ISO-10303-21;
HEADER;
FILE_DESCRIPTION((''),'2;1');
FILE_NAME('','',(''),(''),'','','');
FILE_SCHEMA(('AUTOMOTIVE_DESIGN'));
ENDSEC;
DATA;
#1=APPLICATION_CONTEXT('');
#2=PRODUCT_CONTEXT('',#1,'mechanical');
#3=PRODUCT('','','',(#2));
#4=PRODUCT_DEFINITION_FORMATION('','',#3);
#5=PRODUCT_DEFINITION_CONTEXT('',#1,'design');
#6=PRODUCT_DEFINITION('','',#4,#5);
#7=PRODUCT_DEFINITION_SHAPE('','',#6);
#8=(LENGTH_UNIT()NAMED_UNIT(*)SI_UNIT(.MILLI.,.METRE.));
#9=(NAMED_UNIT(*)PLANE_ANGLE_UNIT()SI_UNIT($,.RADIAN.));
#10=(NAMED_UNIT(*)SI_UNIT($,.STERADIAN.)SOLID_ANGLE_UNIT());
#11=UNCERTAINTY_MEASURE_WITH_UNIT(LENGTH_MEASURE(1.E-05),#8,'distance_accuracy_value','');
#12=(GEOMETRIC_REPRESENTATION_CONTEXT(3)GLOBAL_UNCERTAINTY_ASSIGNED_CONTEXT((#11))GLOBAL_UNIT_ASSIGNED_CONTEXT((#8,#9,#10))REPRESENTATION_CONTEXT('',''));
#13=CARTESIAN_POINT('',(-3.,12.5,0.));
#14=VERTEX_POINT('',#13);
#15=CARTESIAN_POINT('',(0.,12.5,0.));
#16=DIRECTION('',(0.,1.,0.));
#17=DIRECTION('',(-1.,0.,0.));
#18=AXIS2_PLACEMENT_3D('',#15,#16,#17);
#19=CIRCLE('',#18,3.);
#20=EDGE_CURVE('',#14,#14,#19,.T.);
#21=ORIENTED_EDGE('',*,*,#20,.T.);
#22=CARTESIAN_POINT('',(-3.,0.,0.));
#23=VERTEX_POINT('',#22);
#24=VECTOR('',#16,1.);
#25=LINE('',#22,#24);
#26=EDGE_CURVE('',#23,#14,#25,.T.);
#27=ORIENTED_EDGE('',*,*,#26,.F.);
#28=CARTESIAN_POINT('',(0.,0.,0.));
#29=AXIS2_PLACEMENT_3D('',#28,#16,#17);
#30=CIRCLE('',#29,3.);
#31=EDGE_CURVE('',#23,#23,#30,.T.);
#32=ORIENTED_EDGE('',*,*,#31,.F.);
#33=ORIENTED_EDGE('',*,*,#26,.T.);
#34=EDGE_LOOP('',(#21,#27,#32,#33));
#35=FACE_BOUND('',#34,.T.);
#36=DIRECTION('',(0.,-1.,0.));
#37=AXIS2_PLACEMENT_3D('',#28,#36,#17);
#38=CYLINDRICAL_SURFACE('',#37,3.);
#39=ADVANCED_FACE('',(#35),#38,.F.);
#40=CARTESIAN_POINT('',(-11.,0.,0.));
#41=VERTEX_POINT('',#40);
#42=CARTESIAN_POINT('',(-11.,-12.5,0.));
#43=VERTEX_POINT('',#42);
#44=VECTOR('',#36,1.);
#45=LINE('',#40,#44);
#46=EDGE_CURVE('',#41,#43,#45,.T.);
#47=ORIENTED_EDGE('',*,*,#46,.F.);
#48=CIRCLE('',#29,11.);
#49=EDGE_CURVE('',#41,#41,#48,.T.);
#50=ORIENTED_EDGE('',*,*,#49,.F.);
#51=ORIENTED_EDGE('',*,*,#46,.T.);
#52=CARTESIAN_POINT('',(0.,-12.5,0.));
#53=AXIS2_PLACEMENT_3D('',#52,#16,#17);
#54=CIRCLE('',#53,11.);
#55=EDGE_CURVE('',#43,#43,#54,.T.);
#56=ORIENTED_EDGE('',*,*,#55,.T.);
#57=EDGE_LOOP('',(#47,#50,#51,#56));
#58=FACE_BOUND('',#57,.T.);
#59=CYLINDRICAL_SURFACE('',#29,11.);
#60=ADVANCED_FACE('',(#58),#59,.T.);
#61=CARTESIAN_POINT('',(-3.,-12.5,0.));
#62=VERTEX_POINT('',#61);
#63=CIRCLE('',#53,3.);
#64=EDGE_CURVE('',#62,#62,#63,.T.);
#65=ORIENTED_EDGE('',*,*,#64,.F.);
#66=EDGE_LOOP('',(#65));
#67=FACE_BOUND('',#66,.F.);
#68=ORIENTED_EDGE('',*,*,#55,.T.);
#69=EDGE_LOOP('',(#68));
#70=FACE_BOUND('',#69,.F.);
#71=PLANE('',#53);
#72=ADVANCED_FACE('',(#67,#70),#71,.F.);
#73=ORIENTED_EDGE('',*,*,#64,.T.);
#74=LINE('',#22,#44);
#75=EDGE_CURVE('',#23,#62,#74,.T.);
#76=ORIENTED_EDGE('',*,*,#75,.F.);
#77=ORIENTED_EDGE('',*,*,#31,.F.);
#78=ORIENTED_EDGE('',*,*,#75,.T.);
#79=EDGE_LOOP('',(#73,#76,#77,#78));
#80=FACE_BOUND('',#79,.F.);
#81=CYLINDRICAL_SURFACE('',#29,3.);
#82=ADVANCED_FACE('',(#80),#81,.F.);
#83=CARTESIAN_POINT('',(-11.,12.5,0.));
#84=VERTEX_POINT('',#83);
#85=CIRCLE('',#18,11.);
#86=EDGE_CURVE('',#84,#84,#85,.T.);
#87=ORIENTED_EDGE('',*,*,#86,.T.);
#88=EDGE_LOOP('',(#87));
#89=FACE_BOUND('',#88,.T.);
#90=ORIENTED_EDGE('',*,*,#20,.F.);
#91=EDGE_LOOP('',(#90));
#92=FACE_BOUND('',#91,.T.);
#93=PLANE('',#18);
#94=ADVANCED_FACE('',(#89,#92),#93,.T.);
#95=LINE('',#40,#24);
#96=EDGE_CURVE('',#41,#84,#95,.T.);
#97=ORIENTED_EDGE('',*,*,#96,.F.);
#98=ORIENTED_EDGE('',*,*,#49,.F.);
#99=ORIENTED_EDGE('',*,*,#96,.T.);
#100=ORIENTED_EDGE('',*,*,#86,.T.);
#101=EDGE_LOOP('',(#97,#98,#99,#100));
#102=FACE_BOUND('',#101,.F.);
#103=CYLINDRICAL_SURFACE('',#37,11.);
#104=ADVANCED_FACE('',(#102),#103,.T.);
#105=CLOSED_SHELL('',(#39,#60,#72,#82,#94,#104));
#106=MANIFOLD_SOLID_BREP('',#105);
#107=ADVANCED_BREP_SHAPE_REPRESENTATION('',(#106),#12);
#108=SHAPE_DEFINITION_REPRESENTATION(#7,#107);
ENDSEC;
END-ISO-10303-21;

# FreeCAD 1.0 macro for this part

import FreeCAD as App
import Part
import Sketcher
from FreeCAD import Vector
Q = App.Units.Quantity

doc = App.newDocument("Part")
params = doc.addObject("Spreadsheet::Sheet", "Params")
for row, (alias, value) in enumerate([
    ("sketch1_diameter", "22 mm"),
    ("sketch1_diameter2", "6 mm"),
    ("pad1_length", "25 mm"),
], start=1):
    params.set(f"A{row}", alias)
    params.set(f"B{row}", "=" + value)
    params.setAlias(f"B{row}", alias)

body = doc.addObject("PartDesign::Body", "Body")

# Sketch on XZ plane
sketch1 = body.newObject("Sketcher::SketchObject", "Sketch")
sketch1.AttachmentSupport = (doc.getObject("XZ_Plane"), [""])
sketch1.MapMode = "FlatFace"
sketch1.addGeometry([
    Part.Circle(Vector(0, 0, 0), Vector(0, 0, 1), 11),
    Part.Circle(Vector(0, 0, 0), Vector(0, 0, 1), 3),
], False)
sketch1.addConstraint([
    Sketcher.Constraint("Coincident", 0, 3, -1, 1),
    Sketcher.Constraint("Coincident", 1, 3, -1, 1),
    Sketcher.Constraint("Diameter", 0, Q("22 mm")),
    Sketcher.Constraint("Diameter", 1, Q("6 mm")),
])
sketch1.setExpression("Constraints[2]", "Params.sketch1_diameter")
sketch1.setExpression("Constraints[3]", "Params.sketch1_diameter2")
pad1 = body.newObject("PartDesign::Pad", "Pad")
pad1.Profile = sketch1
pad1.setExpression("Length", "Params.pad1_length")
pad1.Midplane = True

doc.recompute()
